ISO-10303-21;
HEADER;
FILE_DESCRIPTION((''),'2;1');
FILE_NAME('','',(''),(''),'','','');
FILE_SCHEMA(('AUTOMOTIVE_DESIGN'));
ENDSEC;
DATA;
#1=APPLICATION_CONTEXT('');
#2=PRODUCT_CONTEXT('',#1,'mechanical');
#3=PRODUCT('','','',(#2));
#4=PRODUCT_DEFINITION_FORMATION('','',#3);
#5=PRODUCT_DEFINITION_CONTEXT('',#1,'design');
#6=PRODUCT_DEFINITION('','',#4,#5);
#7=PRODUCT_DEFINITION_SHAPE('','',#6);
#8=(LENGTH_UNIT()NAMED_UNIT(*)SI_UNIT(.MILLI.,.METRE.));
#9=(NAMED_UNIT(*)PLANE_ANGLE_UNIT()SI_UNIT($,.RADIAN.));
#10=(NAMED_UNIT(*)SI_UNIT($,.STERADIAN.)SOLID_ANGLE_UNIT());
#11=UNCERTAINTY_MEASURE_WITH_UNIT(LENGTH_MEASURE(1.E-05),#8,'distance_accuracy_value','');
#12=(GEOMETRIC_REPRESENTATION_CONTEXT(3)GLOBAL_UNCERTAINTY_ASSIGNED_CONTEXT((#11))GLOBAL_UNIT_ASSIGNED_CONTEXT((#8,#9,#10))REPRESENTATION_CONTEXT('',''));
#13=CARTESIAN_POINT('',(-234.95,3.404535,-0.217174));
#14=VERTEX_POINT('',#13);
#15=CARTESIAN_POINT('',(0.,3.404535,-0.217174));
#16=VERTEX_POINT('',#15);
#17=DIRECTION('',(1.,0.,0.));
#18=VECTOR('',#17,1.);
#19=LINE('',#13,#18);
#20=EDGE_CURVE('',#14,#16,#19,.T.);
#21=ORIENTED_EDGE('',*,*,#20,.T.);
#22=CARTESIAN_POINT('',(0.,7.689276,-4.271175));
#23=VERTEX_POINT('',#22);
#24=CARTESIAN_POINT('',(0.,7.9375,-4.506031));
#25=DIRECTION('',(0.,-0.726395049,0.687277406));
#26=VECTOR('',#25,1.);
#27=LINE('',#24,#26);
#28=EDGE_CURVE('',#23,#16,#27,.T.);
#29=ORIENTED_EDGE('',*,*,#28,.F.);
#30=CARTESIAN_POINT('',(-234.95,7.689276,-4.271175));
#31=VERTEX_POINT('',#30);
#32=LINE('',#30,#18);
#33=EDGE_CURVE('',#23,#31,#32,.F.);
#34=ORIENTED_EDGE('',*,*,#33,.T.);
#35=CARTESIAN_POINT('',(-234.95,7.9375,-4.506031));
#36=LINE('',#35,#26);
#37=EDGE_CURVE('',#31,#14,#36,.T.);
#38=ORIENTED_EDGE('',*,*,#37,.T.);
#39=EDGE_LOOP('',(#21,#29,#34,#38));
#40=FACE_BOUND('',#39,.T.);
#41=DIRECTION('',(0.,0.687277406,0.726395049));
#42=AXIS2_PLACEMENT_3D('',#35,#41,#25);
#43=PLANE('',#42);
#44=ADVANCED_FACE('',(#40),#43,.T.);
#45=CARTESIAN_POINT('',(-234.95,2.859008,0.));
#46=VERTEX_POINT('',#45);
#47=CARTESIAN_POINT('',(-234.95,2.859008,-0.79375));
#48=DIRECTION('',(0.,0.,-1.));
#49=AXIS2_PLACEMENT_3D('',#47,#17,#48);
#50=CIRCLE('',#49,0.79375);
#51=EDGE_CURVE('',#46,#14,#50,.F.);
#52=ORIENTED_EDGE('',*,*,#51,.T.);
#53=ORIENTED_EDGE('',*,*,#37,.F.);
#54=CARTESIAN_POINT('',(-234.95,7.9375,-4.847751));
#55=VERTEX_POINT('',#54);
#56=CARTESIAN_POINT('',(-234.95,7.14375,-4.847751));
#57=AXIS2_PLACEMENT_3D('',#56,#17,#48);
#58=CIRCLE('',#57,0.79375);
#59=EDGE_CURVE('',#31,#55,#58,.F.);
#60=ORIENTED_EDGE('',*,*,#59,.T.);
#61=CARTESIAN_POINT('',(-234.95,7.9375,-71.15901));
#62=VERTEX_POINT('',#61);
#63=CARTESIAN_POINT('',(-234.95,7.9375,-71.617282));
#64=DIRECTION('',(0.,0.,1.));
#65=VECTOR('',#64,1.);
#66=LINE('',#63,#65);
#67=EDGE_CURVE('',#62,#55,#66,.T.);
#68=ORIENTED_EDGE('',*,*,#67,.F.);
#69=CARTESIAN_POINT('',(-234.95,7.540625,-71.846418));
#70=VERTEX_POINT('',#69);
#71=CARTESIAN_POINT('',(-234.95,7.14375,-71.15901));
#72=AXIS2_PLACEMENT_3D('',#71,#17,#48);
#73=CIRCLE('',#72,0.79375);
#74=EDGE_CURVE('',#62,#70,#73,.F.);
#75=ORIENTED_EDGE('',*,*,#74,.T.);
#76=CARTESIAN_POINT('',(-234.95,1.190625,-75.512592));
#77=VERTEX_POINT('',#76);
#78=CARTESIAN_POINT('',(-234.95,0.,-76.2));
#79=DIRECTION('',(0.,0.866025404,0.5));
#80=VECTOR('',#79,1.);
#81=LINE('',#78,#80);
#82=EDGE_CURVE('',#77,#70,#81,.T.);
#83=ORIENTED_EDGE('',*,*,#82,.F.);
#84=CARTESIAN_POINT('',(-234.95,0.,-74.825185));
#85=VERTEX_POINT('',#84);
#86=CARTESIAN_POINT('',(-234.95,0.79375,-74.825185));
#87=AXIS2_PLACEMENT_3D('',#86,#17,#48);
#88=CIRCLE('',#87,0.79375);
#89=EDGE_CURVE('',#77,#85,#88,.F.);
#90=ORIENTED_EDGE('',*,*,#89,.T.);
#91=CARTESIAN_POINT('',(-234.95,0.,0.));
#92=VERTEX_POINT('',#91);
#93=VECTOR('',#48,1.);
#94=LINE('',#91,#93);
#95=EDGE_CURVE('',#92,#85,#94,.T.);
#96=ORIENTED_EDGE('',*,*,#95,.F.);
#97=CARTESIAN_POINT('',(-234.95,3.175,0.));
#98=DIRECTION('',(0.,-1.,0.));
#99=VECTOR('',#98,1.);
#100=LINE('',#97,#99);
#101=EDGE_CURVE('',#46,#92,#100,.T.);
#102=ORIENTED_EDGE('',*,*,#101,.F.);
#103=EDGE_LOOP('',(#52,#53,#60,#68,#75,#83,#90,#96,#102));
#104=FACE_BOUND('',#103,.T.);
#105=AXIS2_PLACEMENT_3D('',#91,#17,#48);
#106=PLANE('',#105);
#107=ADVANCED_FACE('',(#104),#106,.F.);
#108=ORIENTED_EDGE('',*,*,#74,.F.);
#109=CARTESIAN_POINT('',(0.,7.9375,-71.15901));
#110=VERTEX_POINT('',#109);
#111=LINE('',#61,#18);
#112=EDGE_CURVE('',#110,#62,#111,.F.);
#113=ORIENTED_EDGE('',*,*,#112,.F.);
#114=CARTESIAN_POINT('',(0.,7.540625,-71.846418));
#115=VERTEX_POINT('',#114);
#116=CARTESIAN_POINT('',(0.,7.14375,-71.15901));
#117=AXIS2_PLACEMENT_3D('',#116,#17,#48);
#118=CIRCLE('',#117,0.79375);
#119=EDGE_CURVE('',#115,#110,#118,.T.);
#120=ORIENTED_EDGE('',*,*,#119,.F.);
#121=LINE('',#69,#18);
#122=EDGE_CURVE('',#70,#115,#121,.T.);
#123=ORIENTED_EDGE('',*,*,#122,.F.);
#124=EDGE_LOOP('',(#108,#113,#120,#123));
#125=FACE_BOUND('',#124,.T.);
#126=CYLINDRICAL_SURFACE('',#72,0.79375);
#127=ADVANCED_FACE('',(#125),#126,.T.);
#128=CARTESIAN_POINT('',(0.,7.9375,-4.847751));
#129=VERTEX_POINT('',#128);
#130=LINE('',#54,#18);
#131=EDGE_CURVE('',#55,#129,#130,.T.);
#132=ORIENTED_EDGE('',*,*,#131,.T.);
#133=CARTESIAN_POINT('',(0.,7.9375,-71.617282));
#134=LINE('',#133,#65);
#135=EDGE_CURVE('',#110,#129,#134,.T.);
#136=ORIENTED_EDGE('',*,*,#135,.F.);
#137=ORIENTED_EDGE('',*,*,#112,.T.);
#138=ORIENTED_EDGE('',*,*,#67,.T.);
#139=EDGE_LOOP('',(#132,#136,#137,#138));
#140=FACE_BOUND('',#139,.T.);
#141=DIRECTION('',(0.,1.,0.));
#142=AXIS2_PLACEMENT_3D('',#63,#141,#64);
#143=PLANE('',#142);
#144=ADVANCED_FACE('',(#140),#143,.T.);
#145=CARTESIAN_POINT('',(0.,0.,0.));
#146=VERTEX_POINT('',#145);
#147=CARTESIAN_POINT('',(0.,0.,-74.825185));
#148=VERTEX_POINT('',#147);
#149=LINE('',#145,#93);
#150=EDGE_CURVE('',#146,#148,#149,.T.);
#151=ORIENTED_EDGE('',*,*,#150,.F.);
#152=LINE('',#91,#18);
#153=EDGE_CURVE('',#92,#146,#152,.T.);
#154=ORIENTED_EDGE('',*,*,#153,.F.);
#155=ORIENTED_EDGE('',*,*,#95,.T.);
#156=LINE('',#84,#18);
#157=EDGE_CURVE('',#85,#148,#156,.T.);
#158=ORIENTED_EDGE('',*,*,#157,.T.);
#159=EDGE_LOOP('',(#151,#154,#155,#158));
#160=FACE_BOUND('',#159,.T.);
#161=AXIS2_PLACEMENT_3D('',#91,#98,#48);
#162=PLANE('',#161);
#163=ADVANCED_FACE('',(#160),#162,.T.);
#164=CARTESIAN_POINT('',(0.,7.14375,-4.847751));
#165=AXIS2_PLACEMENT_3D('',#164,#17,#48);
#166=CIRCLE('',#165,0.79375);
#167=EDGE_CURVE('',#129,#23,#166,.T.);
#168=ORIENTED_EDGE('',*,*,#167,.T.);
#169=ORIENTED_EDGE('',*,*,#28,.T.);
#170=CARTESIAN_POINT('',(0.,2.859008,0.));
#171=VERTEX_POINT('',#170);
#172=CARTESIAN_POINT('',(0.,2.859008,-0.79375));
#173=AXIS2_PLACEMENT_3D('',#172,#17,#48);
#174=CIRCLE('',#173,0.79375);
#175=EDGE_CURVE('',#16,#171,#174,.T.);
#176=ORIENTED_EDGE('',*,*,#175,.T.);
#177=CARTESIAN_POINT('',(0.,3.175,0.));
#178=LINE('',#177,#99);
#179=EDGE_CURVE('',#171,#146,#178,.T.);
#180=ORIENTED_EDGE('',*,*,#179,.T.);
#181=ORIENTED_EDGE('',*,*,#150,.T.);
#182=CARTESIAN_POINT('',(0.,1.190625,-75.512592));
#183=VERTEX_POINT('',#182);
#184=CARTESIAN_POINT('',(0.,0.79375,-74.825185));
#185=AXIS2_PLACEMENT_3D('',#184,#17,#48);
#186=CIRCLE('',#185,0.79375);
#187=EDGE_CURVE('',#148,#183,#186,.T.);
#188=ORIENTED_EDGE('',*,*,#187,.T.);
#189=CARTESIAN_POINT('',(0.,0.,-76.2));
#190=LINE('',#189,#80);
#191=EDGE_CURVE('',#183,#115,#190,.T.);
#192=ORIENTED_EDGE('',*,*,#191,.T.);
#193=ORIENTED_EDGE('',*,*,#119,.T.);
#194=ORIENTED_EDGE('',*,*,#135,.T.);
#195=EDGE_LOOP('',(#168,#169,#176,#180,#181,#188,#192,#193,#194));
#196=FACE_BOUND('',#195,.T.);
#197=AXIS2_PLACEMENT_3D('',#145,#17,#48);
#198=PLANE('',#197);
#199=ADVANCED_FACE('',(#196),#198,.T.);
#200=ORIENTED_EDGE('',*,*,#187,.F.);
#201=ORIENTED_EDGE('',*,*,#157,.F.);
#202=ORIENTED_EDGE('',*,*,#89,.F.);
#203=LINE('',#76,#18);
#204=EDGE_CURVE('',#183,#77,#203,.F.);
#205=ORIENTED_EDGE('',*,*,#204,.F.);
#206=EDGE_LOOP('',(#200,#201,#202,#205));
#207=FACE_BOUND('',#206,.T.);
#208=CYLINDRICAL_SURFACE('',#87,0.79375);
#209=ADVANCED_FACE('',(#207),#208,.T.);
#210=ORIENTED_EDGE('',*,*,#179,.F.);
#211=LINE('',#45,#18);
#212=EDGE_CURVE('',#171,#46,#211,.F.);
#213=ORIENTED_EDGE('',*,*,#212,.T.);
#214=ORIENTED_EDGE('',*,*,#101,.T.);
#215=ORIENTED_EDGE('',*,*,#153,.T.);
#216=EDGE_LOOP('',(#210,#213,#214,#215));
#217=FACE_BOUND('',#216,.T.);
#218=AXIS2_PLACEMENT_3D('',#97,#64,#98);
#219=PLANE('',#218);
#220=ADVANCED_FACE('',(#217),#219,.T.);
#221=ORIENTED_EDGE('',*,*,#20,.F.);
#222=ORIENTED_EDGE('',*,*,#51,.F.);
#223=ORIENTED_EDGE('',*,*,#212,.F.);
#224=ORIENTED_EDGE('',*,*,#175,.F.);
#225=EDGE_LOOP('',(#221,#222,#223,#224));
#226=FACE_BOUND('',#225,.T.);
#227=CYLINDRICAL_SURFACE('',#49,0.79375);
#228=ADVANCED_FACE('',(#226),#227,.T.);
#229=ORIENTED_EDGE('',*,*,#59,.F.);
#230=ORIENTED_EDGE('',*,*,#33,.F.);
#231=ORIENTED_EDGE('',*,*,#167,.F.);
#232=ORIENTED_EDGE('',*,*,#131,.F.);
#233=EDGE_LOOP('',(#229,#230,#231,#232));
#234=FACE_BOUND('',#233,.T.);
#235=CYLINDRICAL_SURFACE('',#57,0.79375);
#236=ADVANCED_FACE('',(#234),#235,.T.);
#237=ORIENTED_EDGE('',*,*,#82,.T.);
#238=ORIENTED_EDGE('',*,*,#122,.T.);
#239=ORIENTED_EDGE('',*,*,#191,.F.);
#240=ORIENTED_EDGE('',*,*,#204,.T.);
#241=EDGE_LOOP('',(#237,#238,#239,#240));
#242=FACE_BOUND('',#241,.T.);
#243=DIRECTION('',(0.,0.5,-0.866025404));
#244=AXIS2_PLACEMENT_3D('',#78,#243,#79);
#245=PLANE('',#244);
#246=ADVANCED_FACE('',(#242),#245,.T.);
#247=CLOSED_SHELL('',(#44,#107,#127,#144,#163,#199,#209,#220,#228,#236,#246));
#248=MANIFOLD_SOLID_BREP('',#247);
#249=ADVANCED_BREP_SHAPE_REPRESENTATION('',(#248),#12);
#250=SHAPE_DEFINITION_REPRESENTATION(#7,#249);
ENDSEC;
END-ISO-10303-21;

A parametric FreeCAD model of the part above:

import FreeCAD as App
import Part
import Sketcher
from FreeCAD import Vector
Q = App.Units.Quantity


def edges_at(feature, points):
    """Names of the edges that pass closest to the given points."""
    edges = feature.Shape.Edges
    near = lambda p: min(range(len(edges)), key=lambda i: edges[i].distToShape(Part.Vertex(*p))[0])
    return sorted({f"Edge{near(p) + 1}" for p in points})


def add_polygon(sketch, points):
    """Adds a closed chain of lines whose ends are joined by coincident constraints."""
    first, n = sketch.GeometryCount, len(points)
    for a, b in zip(points, points[1:] + points[:1]):
        sketch.addGeometry(Part.LineSegment(App.Vector(*a, 0), App.Vector(*b, 0)), False)
    for i in range(n):
        sketch.addConstraint(Sketcher.Constraint("Coincident", first + i, 2, first + (i + 1) % n, 1))

doc = App.newDocument("Part")
body = doc.addObject("PartDesign::Body", "Body")

sketch1 = body.newObject("Sketcher::SketchObject", "Sketch")
sketch1.AttachmentSupport = (doc.getObject("YZ_Plane"), [""])
sketch1.MapMode = "FlatFace"
add_polygon(sketch1, [(0, 0), (0, -76.2), (7.9, -71.6), (7.9, -4.5), (3.2, 0)])
sketch1.addConstraint(Sketcher.Constraint("Vertical", 0))
sketch1.addConstraint(Sketcher.Constraint("Vertical", 2))
sketch1.addConstraint(Sketcher.Constraint("Horizontal", 4))
sketch1.addConstraint(Sketcher.Constraint("Coincident", 4, 2, -1, 1))
sketch1.addConstraint(Sketcher.Constraint("DistanceY", 0, 2, 0, 1, Q("3 in")))
sketch1.addConstraint(Sketcher.Constraint("Angle", 1, Q("30 deg")))
sketch1.addConstraint(Sketcher.Constraint("DistanceX", 4, 2, 4, 1, Q("0.125 in")))
sketch1.addConstraint(Sketcher.Constraint("DistanceX", -1, 1, 1, 2, Q("0.3125 in")))
sketch1.addConstraint(Sketcher.Constraint("DistanceY", 2, 1, 2, 2, Q("67.111251 mm")))
pad1 = body.newObject("PartDesign::Pad", "Pad")
pad1.Profile = sketch1
pad1.Length = Q("9.25 in")
pad1.Reversed = True
doc.recompute()

fillet = body.newObject("PartDesign::Fillet", "Fillet")
fillet.Base = (pad1, edges_at(pad1, [
    (-117.475, 3.175, 0),
    (-117.475, 7.938, -4.506),
    (-117.475, 7.938, -71.617),
    (-117.475, 0, -76.2),
]))
fillet.Radius = Q("0.03125 in")

doc.recompute()
